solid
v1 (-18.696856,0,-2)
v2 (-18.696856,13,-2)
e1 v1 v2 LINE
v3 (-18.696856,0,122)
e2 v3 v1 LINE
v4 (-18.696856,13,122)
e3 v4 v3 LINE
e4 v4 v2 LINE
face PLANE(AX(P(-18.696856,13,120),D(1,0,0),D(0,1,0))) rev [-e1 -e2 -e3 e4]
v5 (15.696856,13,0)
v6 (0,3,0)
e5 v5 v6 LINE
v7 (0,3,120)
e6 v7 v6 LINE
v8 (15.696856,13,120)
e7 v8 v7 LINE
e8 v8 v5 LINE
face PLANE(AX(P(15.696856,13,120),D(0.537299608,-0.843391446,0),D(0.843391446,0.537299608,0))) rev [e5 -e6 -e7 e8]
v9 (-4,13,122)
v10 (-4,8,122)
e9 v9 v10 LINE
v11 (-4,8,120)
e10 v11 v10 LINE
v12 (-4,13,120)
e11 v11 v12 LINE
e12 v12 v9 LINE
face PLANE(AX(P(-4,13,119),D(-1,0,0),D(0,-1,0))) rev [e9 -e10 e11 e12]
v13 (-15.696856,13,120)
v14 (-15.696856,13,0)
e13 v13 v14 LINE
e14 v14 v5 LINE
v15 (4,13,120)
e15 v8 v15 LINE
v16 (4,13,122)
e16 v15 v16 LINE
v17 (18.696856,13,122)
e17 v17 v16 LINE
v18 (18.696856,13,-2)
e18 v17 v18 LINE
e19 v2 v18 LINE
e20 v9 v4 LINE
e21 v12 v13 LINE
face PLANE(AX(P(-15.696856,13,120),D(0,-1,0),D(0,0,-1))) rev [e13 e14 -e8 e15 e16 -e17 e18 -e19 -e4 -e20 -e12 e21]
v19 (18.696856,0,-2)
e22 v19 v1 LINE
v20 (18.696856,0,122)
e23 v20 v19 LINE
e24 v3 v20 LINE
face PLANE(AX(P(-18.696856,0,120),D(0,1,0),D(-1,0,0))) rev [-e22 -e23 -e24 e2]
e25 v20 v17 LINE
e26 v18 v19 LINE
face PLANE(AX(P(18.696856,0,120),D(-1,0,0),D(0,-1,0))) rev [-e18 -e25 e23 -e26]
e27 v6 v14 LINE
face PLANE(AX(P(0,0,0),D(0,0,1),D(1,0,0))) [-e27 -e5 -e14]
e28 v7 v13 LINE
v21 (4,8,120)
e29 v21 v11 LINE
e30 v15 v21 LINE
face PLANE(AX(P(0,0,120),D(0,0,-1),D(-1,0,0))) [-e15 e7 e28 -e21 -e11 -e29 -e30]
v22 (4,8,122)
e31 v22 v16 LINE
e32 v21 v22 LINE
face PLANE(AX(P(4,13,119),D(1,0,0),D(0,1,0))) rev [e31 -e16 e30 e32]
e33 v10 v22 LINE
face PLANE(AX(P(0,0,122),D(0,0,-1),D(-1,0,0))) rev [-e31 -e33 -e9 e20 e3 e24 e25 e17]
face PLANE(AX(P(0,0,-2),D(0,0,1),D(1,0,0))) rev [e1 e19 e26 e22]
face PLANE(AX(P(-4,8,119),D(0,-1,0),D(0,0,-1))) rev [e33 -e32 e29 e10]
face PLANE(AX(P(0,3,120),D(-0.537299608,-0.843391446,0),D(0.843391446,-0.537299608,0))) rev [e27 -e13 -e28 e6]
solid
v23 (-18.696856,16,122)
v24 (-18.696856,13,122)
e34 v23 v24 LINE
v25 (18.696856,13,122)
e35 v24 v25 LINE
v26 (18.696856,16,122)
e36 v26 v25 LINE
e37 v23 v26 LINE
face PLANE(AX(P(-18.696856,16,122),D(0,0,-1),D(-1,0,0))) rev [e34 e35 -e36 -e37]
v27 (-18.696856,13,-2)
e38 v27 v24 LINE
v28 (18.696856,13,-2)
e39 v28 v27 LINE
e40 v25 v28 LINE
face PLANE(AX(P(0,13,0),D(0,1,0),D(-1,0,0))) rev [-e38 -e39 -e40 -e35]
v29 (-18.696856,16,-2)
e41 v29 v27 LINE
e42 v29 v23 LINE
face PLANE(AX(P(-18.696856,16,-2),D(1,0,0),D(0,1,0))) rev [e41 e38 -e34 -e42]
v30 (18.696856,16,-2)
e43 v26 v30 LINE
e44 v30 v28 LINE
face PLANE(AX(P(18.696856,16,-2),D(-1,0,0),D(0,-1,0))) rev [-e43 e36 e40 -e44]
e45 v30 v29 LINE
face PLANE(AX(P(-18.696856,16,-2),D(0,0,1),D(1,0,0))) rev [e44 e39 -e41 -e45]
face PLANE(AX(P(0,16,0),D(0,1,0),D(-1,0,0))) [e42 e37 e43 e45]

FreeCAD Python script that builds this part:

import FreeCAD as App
import Part
import Sketcher
from FreeCAD import Vector
Q = App.Units.Quantity


def add_polygon(sketch, points):
    """Adds a closed chain of lines whose ends are joined by coincident constraints."""
    first, n = sketch.GeometryCount, len(points)
    for a, b in zip(points, points[1:] + points[:1]):
        sketch.addGeometry(Part.LineSegment(App.Vector(*a, 0), App.Vector(*b, 0)), False)
    for i in range(n):
        sketch.addConstraint(Sketcher.Constraint("Coincident", first + i, 2, first + (i + 1) % n, 1))

doc = App.newDocument("Part")
body = doc.addObject("PartDesign::Body", "Body")

# Sketch on XY plane
sketch1 = doc.addObject("Sketcher::SketchObject", "Sketch")
body.addObject(sketch1)
sketch1.AttachmentSupport = (doc.XY_Plane, [""])
sketch1.MapMode = "FlatFace"
add_polygon(sketch1, [(-18.7, 0), (18.7, 0), (18.7, 13), (15.7, 13), (0, 3), (-15.7, 13), (-18.7, 13)])  # lines 0-6
sketch1.addConstraint(Sketcher.Constraint("Horizontal", 0))
sketch1.addConstraint(Sketcher.Constraint("Vertical", 1))
sketch1.addConstraint(Sketcher.Constraint("Horizontal", 2))
sketch1.addConstraint(Sketcher.Constraint("Horizontal", 5))
sketch1.addConstraint(Sketcher.Constraint("Vertical", 6))
sketch1.addConstraint(Sketcher.Constraint("Symmetric", 0, 2, 6, 2, -1, 1))
sketch1.addConstraint(Sketcher.Constraint("Symmetric", 2, 2, 4, 2, -2))
sketch1.addConstraint(Sketcher.Constraint("PointOnObject", 3, 2, -2))
sketch1.addConstraint(Sketcher.Constraint("DistanceX", 2, 2, 2, 1, 3.0))
sketch1.addConstraint(Sketcher.Constraint("DistanceY", 1, 1, 1, 2, 13.0))
sketch1.addConstraint(Sketcher.Constraint("DistanceY", -1, 1, 3, 2, 3.0))
sketch1.addConstraint(Sketcher.Constraint("Angle", 3, Q("-147.5 deg")))
pad1 = doc.addObject("PartDesign::Pad", "Pad")
body.addObject(pad1)
pad1.Profile = sketch1
pad1.Length = 120

# Sketch on XY plane
sketch2 = doc.addObject("Sketcher::SketchObject", "Sketch001")
body.addObject(sketch2)
sketch2.AttachmentSupport = (doc.XY_Plane, [""])
sketch2.MapMode = "FlatFace"
add_polygon(sketch2, [(19, 13), (19, 0), (-19, 0), (-19, 13)])  # lines 0-3
sketch2.addConstraint(Sketcher.Constraint("Vertical", 0))
sketch2.addConstraint(Sketcher.Constraint("Horizontal", 1))
sketch2.addConstraint(Sketcher.Constraint("Vertical", 2))
sketch2.addConstraint(Sketcher.Constraint("Horizontal", 3))
sketch2.addConstraint(Sketcher.Constraint("Symmetric", 0, 2, 1, 2, -1, 1))
sketch2.addConstraint(Sketcher.Constraint("DistanceY", 0, 2, 0, 1, 13.0))
sketch2.addConstraint(Sketcher.Constraint("DistanceX", 1, 2, 1, 1, 37.393712))
pad2 = doc.addObject("PartDesign::Pad", "Pad001")
body.addObject(pad2)
pad2.Profile = sketch2
pad2.Length = 2
pad2.Reversed = True

# Sketch on XY plane
sketch3 = doc.addObject("Sketcher::SketchObject", "Sketch002")
body.addObject(sketch3)
sketch3.AttachmentSupport = (doc.XY_Plane, [""])
sketch3.MapMode = "FlatFace"
sketch3.AttachmentOffset = App.Placement(Vector(0, 0, 120), App.Rotation())
add_polygon(sketch3, [(-19, 13), (-19, 0), (19, 0), (19, 13)])  # lines 0-3
sketch3.addConstraint(Sketcher.Constraint("Vertical", 0))
sketch3.addConstraint(Sketcher.Constraint("Horizontal", 1))
sketch3.addConstraint(Sketcher.Constraint("Vertical", 2))
sketch3.addConstraint(Sketcher.Constraint("Horizontal", 3))
sketch3.addConstraint(Sketcher.Constraint("Symmetric", 0, 2, 1, 2, -1, 1))
sketch3.addConstraint(Sketcher.Constraint("DistanceY", 0, 2, 0, 1, 13.0))
sketch3.addConstraint(Sketcher.Constraint("DistanceX", 1, 1, 1, 2, 37.393712))
pad3 = doc.addObject("PartDesign::Pad", "Pad002")
body.addObject(pad3)
pad3.Profile = sketch3
pad3.Length = 2

# Sketch on XY plane
sketch4 = doc.addObject("Sketcher::SketchObject", "Sketch003")
body.addObject(sketch4)
sketch4.AttachmentSupport = (doc.XY_Plane, [""])
sketch4.MapMode = "FlatFace"
sketch4.AttachmentOffset = App.Placement(Vector(0, 0, 122), App.Rotation())
add_polygon(sketch4, [(-4, 13), (-4, 8), (4, 8), (4, 13)])  # lines 0-3
sketch4.addConstraint(Sketcher.Constraint("Vertical", 0))
sketch4.addConstraint(Sketcher.Constraint("Horizontal", 1))
sketch4.addConstraint(Sketcher.Constraint("Vertical", 2))
sketch4.addConstraint(Sketcher.Constraint("Horizontal", 3))
sketch4.addConstraint(Sketcher.Constraint("DistanceX", 1, 1, 1, 2, 8.0))
sketch4.addConstraint(Sketcher.Constraint("DistanceY", 0, 2, 0, 1, 5.0))
sketch4.addConstraint(Sketcher.Constraint("DistanceX", 0, 2, -1, 1, 4.0))
sketch4.addConstraint(Sketcher.Constraint("DistanceY", -1, 1, 0, 2, 8.0))
pocket1 = doc.addObject("PartDesign::Pocket", "Pocket")
body.addObject(pocket1)
pocket1.Profile = sketch4
pocket1.Length = 3
body2 = doc.addObject("PartDesign::Body", "Body001")

# Sketch on XZ plane
sketch5 = doc.addObject("Sketcher::SketchObject", "Sketch004")
body2.addObject(sketch5)
sketch5.AttachmentSupport = (doc.getObject("XZ_Plane001"), [""])
sketch5.MapMode = "FlatFace"
sketch5.AttachmentOffset = App.Placement(Vector(0, 0, -13), App.Rotation())
add_polygon(sketch5, [(-19, -2), (-19, 122), (19, 122), (19, -2)])  # lines 0-3
sketch5.addConstraint(Sketcher.Constraint("Vertical", 0))
sketch5.addConstraint(Sketcher.Constraint("Horizontal", 1))
sketch5.addConstraint(Sketcher.Constraint("Vertical", 2))
sketch5.addConstraint(Sketcher.Constraint("Horizontal", 3))
sketch5.addConstraint(Sketcher.Constraint("DistanceY", 0, 1, 0, 2, 124.0))
sketch5.addConstraint(Sketcher.Constraint("DistanceY", -1, 1, 0, 2, 122.0))
sketch5.addConstraint(Sketcher.Constraint("DistanceX", 1, 1, 1, 2, 37.393712))
sketch5.addConstraint(Sketcher.Constraint("DistanceX", 0, 2, -1, 1, 18.696856))
pad4 = doc.addObject("PartDesign::Pad", "Pad003")
body2.addObject(pad4)
pad4.Profile = sketch5
pad4.Length = 3
pad4.Reversed = True

doc.recompute()
